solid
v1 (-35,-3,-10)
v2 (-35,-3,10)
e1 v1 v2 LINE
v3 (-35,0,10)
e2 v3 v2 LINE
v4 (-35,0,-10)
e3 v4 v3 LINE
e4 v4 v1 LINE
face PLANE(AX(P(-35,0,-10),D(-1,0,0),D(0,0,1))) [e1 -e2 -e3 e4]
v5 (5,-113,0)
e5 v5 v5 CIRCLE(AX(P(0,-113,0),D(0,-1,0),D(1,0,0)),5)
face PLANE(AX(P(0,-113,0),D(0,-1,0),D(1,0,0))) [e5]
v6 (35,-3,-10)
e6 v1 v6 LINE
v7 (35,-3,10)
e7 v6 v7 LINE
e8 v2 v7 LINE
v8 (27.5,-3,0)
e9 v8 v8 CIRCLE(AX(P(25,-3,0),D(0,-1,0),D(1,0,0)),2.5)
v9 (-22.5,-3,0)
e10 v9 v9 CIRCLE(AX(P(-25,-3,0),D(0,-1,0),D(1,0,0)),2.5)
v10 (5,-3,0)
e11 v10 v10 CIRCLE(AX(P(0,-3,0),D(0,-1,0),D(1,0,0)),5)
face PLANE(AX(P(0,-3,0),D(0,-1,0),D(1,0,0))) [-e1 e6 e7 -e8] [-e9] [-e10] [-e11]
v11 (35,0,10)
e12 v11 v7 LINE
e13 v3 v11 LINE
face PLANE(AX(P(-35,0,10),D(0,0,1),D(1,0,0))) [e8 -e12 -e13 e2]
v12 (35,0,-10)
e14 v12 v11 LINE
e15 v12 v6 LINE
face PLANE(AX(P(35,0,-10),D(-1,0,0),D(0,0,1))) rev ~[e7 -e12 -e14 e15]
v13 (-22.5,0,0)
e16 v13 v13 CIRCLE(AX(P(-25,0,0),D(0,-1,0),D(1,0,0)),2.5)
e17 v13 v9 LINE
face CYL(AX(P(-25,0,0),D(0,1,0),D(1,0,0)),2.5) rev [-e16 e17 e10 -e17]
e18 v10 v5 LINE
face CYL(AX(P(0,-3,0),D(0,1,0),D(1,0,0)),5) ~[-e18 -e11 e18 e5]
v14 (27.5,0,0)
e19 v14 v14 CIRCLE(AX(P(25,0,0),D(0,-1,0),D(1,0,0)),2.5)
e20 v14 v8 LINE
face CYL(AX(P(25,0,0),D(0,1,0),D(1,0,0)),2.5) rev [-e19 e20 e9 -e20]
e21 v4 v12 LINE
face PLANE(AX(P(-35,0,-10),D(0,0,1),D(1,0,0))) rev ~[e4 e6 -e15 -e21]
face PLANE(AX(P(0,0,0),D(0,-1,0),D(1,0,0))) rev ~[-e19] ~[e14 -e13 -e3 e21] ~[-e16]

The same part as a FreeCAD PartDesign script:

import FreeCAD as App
import Part
import Sketcher
Q = App.Units.Quantity


def add_polygon(sketch, points):
    """Adds a closed chain of lines whose ends are joined by coincident constraints."""
    first, n = sketch.GeometryCount, len(points)
    for a, b in zip(points, points[1:] + points[:1]):
        sketch.addGeometry(Part.LineSegment(App.Vector(*a, 0), App.Vector(*b, 0)), False)
    for i in range(n):
        sketch.addConstraint(Sketcher.Constraint("Coincident", first + i, 2, first + (i + 1) % n, 1))

doc = App.newDocument("Part")
body = doc.addObject("PartDesign::Body", "Body")

sketch1 = body.newObject("Sketcher::SketchObject", "Sketch")
sketch1.AttachmentSupport = (doc.getObject("XZ_Plane"), [""])
sketch1.MapMode = "FlatFace"
add_polygon(sketch1, [(-35, 10), (-35, -10), (35, -10), (35, 10)])
sketch1.addGeometry(Part.Circle(App.Vector(-25, 0, 0), App.Vector(0, 0, 1), 2.5), False)
sketch1.addGeometry(Part.Circle(App.Vector(25, 0, 0), App.Vector(0, 0, 1), 2.5), False)
sketch1.addConstraint([
    Sketcher.Constraint("Vertical", 0),
    Sketcher.Constraint("Horizontal", 1),
    Sketcher.Constraint("Vertical", 2),
    Sketcher.Constraint("Horizontal", 3),
    Sketcher.Constraint("Equal", 4, 5),
    Sketcher.Constraint("Symmetric", 4, 3, 5, 3, -1, 1),
    Sketcher.Constraint("Symmetric", 0, 2, 2, 2, -1, 1),
    Sketcher.Constraint("PointOnObject", 4, 3, -1),
    Sketcher.Constraint("Diameter", 4, Q("5 mm")),
    Sketcher.Constraint("DistanceX", 1, 1, 1, 2, Q("70 mm")),
    Sketcher.Constraint("DistanceY", 0, 2, 0, 1, Q("20 mm")),
    Sketcher.Constraint("DistanceX", 4, 3, -1, 1, Q("25 mm")),
])
pad1 = body.newObject("PartDesign::Pad", "Pad")
pad1.Profile = sketch1
pad1.Length = 3

sketch2 = body.newObject("Sketcher::SketchObject", "Sketch001")
sketch2.AttachmentSupport = (doc.getObject("XZ_Plane"), [""])
sketch2.MapMode = "FlatFace"
sketch2.AttachmentOffset = App.Placement(App.Vector(0, 0, 3), App.Rotation())
sketch2.addGeometry(Part.Circle(App.Vector(0, 0, 0), App.Vector(0, 0, 1), 5), False)
sketch2.addConstraint([
    Sketcher.Constraint("Coincident", 0, 3, -1, 1),
    Sketcher.Constraint("Diameter", 0, Q("10 mm")),
])
pad2 = body.newObject("PartDesign::Pad", "Pad001")
pad2.Profile = sketch2
pad2.Length = 110

doc.recompute()
